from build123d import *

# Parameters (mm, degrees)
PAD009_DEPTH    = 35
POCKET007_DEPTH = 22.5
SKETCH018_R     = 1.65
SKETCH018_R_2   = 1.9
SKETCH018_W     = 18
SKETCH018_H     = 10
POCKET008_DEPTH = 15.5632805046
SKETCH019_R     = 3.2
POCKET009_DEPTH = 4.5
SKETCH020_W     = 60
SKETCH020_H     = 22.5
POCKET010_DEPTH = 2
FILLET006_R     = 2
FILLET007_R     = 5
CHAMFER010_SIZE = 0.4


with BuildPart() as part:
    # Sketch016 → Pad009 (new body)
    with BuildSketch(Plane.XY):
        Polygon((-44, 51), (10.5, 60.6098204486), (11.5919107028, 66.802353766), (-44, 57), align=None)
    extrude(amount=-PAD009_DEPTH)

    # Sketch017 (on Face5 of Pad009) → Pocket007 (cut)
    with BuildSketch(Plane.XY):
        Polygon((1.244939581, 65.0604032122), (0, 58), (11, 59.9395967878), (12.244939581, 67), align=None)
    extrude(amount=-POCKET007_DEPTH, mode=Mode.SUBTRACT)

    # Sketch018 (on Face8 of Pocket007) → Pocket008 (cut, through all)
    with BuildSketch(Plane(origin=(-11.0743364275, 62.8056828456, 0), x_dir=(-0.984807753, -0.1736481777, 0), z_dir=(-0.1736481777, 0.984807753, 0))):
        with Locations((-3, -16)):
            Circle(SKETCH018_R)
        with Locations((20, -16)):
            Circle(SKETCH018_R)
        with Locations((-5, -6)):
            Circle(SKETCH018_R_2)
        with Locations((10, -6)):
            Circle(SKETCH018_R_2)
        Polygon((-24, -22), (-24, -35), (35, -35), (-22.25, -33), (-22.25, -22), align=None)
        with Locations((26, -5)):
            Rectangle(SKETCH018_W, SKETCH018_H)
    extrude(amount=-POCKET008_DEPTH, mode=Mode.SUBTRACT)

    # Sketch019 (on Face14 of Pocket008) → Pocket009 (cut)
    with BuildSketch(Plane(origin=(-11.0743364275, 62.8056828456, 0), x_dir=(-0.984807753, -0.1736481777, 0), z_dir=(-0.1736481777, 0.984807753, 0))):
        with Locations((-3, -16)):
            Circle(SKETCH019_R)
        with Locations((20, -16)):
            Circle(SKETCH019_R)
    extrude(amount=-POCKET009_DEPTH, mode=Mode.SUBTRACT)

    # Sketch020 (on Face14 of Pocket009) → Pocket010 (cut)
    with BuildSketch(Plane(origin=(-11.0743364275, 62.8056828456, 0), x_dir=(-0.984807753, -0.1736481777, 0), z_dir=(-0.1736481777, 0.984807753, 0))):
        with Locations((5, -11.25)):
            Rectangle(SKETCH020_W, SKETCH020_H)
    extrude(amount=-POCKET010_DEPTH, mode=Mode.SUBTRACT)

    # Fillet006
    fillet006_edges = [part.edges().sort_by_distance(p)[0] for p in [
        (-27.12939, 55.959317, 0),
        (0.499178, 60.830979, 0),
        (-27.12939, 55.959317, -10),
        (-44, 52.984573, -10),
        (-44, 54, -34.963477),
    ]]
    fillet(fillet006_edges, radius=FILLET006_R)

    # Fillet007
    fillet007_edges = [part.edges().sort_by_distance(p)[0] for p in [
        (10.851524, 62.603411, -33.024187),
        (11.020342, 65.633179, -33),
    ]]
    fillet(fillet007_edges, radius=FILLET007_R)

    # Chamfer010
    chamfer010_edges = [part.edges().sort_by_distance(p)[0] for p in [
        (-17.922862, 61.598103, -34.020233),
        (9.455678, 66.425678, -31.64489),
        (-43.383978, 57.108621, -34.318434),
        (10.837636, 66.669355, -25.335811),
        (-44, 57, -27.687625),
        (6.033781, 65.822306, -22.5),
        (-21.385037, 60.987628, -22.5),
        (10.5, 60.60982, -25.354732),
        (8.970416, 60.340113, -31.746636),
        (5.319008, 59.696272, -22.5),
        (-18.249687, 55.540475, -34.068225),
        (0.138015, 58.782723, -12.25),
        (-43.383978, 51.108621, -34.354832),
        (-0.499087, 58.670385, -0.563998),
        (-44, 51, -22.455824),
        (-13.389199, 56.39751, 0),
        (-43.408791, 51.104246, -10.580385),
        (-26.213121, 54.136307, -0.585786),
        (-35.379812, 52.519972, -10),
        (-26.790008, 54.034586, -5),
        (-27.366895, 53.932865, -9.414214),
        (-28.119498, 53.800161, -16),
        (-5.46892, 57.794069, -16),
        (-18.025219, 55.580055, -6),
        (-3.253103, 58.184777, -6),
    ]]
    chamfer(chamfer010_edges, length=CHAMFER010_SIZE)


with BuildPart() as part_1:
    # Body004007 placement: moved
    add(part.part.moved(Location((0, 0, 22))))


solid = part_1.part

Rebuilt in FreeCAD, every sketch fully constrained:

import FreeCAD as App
import Part
import Sketcher

V = App.Vector
Q = App.Units.Quantity


def edges_at(feature, points):
    """Names of the edges that pass closest to the given points."""
    edges = feature.Shape.Edges
    near = lambda p: min(range(len(edges)), key=lambda i: edges[i].distToShape(Part.Vertex(*p))[0])
    return sorted({f"Edge{near(p) + 1}" for p in points})

doc = App.newDocument("Part")
body = doc.addObject("PartDesign::Body", "Body")

# Sketch on XY plane
sketch1 = body.newObject("Sketcher::SketchObject", "Sketch")
sketch1.AttachmentSupport = (doc.getObject("XY_Plane"), [""])
sketch1.MapMode = "FlatFace"
sketch1.addGeometry([
    Part.LineSegment(V(-44, 51, 0), V(10.5, 60.60982, 0)),
    Part.LineSegment(V(10.5, 60.60982, 0), V(11.591911, 66.802354, 0)),
    Part.LineSegment(V(11.591911, 66.802354, 0), V(-44, 57, 0)),
    Part.LineSegment(V(-44, 57, 0), V(-44, 51, 0)),
], False)
sketch1.addConstraint([
    Sketcher.Constraint("Coincident", 0, 2, 1, 1),
    Sketcher.Constraint("Coincident", 1, 2, 2, 1),
    Sketcher.Constraint("Coincident", 2, 2, 3, 1),
    Sketcher.Constraint("Coincident", 3, 2, 0, 1),
    Sketcher.Constraint("Vertical", 3),
    Sketcher.Constraint("Parallel", 0, 2),
    Sketcher.Constraint("DistanceY", 3, 2, 3, 1, Q("6 mm")),
    Sketcher.Constraint("Angle", 0, Q("10 deg")),
    Sketcher.Constraint("Angle", 1, Q("80 deg")),
    Sketcher.Constraint("DistanceX", 2, 2, -1, 1, Q("44 mm")),
    Sketcher.Constraint("DistanceY", -1, 1, 2, 2, Q("57 mm")),
    Sketcher.Constraint("DistanceX", -1, 1, 0, 2, Q("10.5 mm")),
])
pad1 = body.newObject("PartDesign::Pad", "Pad")
pad1.Profile = sketch1
pad1.Length = 35
pad1.Reversed = True

# Sketch on XY plane
sketch2 = body.newObject("Sketcher::SketchObject", "Sketch001")
sketch2.AttachmentSupport = (doc.getObject("XY_Plane"), [""])
sketch2.MapMode = "FlatFace"
sketch2.addGeometry([
    Part.LineSegment(V(1.24494, 65.060403, 0), V(0, 58, 0)),
    Part.LineSegment(V(0, 58, 0), V(11, 59.939597, 0)),
    Part.LineSegment(V(11, 59.939597, 0), V(12.24494, 67, 0)),
    Part.LineSegment(V(12.24494, 67, 0), V(1.24494, 65.060403, 0)),
], False)
sketch2.addConstraint([
    Sketcher.Constraint("Coincident", 0, 2, 1, 1),
    Sketcher.Constraint("Coincident", 1, 2, 2, 1),
    Sketcher.Constraint("Coincident", 2, 2, 3, 1),
    Sketcher.Constraint("Coincident", 3, 2, 0, 1),
    Sketcher.Constraint("PointOnObject", 0, 2, -2),
    Sketcher.Constraint("Parallel", 0, 2),
    Sketcher.Constraint("Parallel", 1, 3),
    Sketcher.Constraint("Angle", 0, Q("-100 deg")),
    Sketcher.Constraint("Angle", 1, Q("10 deg")),
    Sketcher.Constraint("DistanceY", -1, 1, 0, 2, Q("58 mm")),
    Sketcher.Constraint("DistanceX", -1, 1, 1, 2, Q("11 mm")),
    Sketcher.Constraint("DistanceY", -1, 1, 2, 2, Q("67 mm")),
])
pocket1 = body.newObject("PartDesign::Pocket", "Pocket")
pocket1.Profile = sketch2
pocket1.Length = 22.5

# Sketch on an angled plane
sketch3 = body.newObject("Sketcher::SketchObject", "Sketch002")
sketch3.Placement = App.Placement(V(-11.074336, 62.805683, 0), App.Rotation(V(-0.984807753, -0.173648178, 0), V(0, 0, 1), V(-0.173648178, 0.984807753, 0), "ZXY"))
sketch3.addGeometry([
    Part.Circle(V(-3, -16, 0), V(0, 0, 1), 1.65),  # 0
    Part.Circle(V(20, -16, 0), V(0, 0, 1), 1.65),  # 1
    Part.Circle(V(-5, -6, 0), V(0, 0, 1), 1.9),  # 2
    Part.Circle(V(10, -6, 0), V(0, 0, 1), 1.9),  # 3
    Part.LineSegment(V(-24, -22, 0), V(-24, -35, 0)),  # 4
    Part.LineSegment(V(-24, -35, 0), V(35, -35, 0)),  # 5
    Part.LineSegment(V(35, -35, 0), V(-22.25, -33, 0)),  # 6
    Part.LineSegment(V(-22.25, -33, 0), V(-22.25, -22, 0)),  # 7
    Part.LineSegment(V(-22.25, -22, 0), V(-24, -22, 0)),  # 8
    Part.LineSegment(V(17, 0, 0), V(17, -10, 0)),  # 9
    Part.LineSegment(V(17, -10, 0), V(35, -10, 0)),  # 10
    Part.LineSegment(V(35, -10, 0), V(35, 0, 0)),  # 11
    Part.LineSegment(V(35, 0, 0), V(17, 0, 0)),  # 12
], False)
sketch3.addConstraint([
    Sketcher.Constraint("Coincident", 4, 2, 5, 1),
    Sketcher.Constraint("Coincident", 5, 2, 6, 1),
    Sketcher.Constraint("Coincident", 6, 2, 7, 1),
    Sketcher.Constraint("Coincident", 7, 2, 8, 1),
    Sketcher.Constraint("Coincident", 8, 2, 4, 1),
    Sketcher.Constraint("Coincident", 9, 2, 10, 1),
    Sketcher.Constraint("Coincident", 10, 2, 11, 1),
    Sketcher.Constraint("Coincident", 11, 2, 12, 1),
    Sketcher.Constraint("Coincident", 12, 2, 9, 1),
    Sketcher.Constraint("Vertical", 4),
    Sketcher.Constraint("Horizontal", 5),
    Sketcher.Constraint("Vertical", 7),
    Sketcher.Constraint("Horizontal", 8),
    Sketcher.Constraint("Vertical", 9),
    Sketcher.Constraint("Horizontal", 10),
    Sketcher.Constraint("Vertical", 11),
    Sketcher.Constraint("Horizontal", 12),
    Sketcher.Constraint("Equal", 0, 1),
    Sketcher.Constraint("Equal", 2, 3),
    Sketcher.Constraint("PointOnObject", 11, 2, -1),
    Sketcher.Constraint("Horizontal", 0, 3, 1, 3),
    Sketcher.Constraint("Horizontal", 2, 3, 3, 3),
    Sketcher.Constraint("Vertical", 5, 2, 10, 2),
    Sketcher.Constraint("Diameter", 0, Q("3.3 mm")),
    Sketcher.Constraint("Diameter", 2, Q("3.8 mm")),
    Sketcher.Constraint("DistanceX", 5, 1, 5, 2, Q("59 mm")),
    Sketcher.Constraint("DistanceX", 10, 1, 10, 2, Q("18 mm")),
    Sketcher.Constraint("DistanceY", 4, 2, 4, 1, Q("13 mm")),
    Sketcher.Constraint("DistanceY", 7, 1, 7, 2, Q("11 mm")),
    Sketcher.Constraint("DistanceY", 9, 2, 9, 1, Q("10 mm")),
    Sketcher.Constraint("DistanceX", 0, 3, -1, 1, Q("3 mm")),
    Sketcher.Constraint("DistanceY", 0, 3, -1, 1, Q("16 mm")),
    Sketcher.Constraint("DistanceX", -1, 1, 1, 3, Q("20 mm")),
    Sketcher.Constraint("DistanceX", 2, 3, -1, 1, Q("5 mm")),
    Sketcher.Constraint("DistanceY", 2, 3, -1, 1, Q("6 mm")),
    Sketcher.Constraint("DistanceX", -1, 1, 3, 3, Q("10 mm")),
    Sketcher.Constraint("DistanceX", 4, 2, -1, 1, Q("24 mm")),
    Sketcher.Constraint("DistanceY", 4, 2, -1, 1, Q("35 mm")),
    Sketcher.Constraint("DistanceX", 8, 2, 8, 1, Q("1.75 mm")),
])
pocket2 = body.newObject("PartDesign::Pocket", "Pocket001")
pocket2.Profile = sketch3
pocket2.Type = "ThroughAll"

# Sketch on an angled plane
sketch4 = body.newObject("Sketcher::SketchObject", "Sketch003")
sketch4.Placement = App.Placement(V(-11.074336, 62.805683, 0), App.Rotation(V(-0.984807753, -0.173648178, 0), V(0, 0, 1), V(-0.173648178, 0.984807753, 0), "ZXY"))
sketch4.addGeometry([
    Part.Circle(V(-3, -16, 0), V(0, 0, 1), 3.2),
    Part.Circle(V(20, -16, 0), V(0, 0, 1), 3.2),
], False)
sketch4.addConstraint([
    Sketcher.Constraint("Equal", 0, 1),
    Sketcher.Constraint("Horizontal", 0, 3, 1, 3),
    Sketcher.Constraint("Diameter", 0, Q("6.4 mm")),
    Sketcher.Constraint("DistanceX", 0, 3, -1, 1, Q("3 mm")),
    Sketcher.Constraint("DistanceY", 0, 3, -1, 1, Q("16 mm")),
    Sketcher.Constraint("DistanceX", -1, 1, 1, 3, Q("20 mm")),
])
pocket3 = body.newObject("PartDesign::Pocket", "Pocket002")
pocket3.Profile = sketch4
pocket3.Length = 4.5

# Sketch on an angled plane
sketch5 = body.newObject("Sketcher::SketchObject", "Sketch004")
sketch5.Placement = App.Placement(V(-11.074336, 62.805683, 0), App.Rotation(V(-0.984807753, -0.173648178, 0), V(0, 0, 1), V(-0.173648178, 0.984807753, 0), "ZXY"))
sketch5.addGeometry([
    Part.LineSegment(V(-25, 0, 0), V(-25, -22.5, 0)),
    Part.LineSegment(V(-25, -22.5, 0), V(35, -22.5, 0)),
    Part.LineSegment(V(35, -22.5, 0), V(35, 0, 0)),
    Part.LineSegment(V(35, 0, 0), V(-25, 0, 0)),
], False)
sketch5.addConstraint([
    Sketcher.Constraint("Coincident", 0, 2, 1, 1),
    Sketcher.Constraint("Coincident", 1, 2, 2, 1),
    Sketcher.Constraint("Coincident", 2, 2, 3, 1),
    Sketcher.Constraint("Coincident", 3, 2, 0, 1),
    Sketcher.Constraint("Vertical", 0),
    Sketcher.Constraint("Horizontal", 1),
    Sketcher.Constraint("Vertical", 2),
    Sketcher.Constraint("Horizontal", 3),
    Sketcher.Constraint("PointOnObject", 2, 2, -1),
    Sketcher.Constraint("DistanceX", 1, 1, 1, 2, Q("60 mm")),
    Sketcher.Constraint("DistanceY", 0, 2, 0, 1, Q("22.5 mm")),
    Sketcher.Constraint("DistanceX", 0, 2, -1, 1, Q("25 mm")),
])
pocket4 = body.newObject("PartDesign::Pocket", "Pocket003")
pocket4.Profile = sketch5
pocket4.Length = 2
doc.recompute()

fillet = body.newObject("PartDesign::Fillet", "Fillet")
fillet.Base = (pocket4, edges_at(pocket4, [
    (-27.129, 55.959, 0),
    (0.499, 60.831, 0),
    (-27.129, 55.959, -10),
    (-44, 52.985, -10),
    (-44, 54, -34.963),
]))
fillet.Radius = 2
doc.recompute()

fillet2 = body.newObject("PartDesign::Fillet", "Fillet001")
fillet2.Base = (fillet, edges_at(fillet, [(10.852, 62.603, -33.024), (11.02, 65.633, -33)]))
fillet2.Radius = 5
doc.recompute()

chamfer = body.newObject("PartDesign::Chamfer", "Chamfer")
chamfer.Base = (fillet2, edges_at(fillet2, [
    (-17.923, 61.598, -34.02),
    (9.456, 66.426, -31.645),
    (-43.384, 57.109, -34.318),
    (10.838, 66.669, -25.336),
    (-44, 57, -27.688),
    (6.034, 65.822, -22.5),
    (-21.385, 60.988, -22.5),
    (10.5, 60.61, -25.355),
    (8.97, 60.34, -31.747),
    (5.319, 59.696, -22.5),
    (-18.25, 55.54, -34.068),
    (0.138, 58.783, -12.25),
    (-43.384, 51.109, -34.355),
    (-0.499, 58.67, -0.564),
    (-44, 51, -22.456),
    (-13.389, 56.398, 0),
    (-43.409, 51.104, -10.58),
    (-26.213, 54.136, -0.586),
    (-35.38, 52.52, -10),
    (-26.79, 54.035, -5),
    (-27.367, 53.933, -9.414),
    (-28.119, 53.8, -16),
    (-5.469, 57.794, -16),
    (-18.025, 55.58, -6),
    (-3.253, 58.185, -6),
]))
chamfer.Size = 0.4
body2 = doc.addObject("PartDesign::Body", "Body001")
doc.recompute()

body.Placement = App.Placement(V(0, 0, 22), App.Rotation(V(0, 0, 1), 0))
boolean = body2.newObject("PartDesign::Boolean", "Boolean")
boolean.Type = "Fuse"
boolean.addObjects([body])

doc.recompute()
